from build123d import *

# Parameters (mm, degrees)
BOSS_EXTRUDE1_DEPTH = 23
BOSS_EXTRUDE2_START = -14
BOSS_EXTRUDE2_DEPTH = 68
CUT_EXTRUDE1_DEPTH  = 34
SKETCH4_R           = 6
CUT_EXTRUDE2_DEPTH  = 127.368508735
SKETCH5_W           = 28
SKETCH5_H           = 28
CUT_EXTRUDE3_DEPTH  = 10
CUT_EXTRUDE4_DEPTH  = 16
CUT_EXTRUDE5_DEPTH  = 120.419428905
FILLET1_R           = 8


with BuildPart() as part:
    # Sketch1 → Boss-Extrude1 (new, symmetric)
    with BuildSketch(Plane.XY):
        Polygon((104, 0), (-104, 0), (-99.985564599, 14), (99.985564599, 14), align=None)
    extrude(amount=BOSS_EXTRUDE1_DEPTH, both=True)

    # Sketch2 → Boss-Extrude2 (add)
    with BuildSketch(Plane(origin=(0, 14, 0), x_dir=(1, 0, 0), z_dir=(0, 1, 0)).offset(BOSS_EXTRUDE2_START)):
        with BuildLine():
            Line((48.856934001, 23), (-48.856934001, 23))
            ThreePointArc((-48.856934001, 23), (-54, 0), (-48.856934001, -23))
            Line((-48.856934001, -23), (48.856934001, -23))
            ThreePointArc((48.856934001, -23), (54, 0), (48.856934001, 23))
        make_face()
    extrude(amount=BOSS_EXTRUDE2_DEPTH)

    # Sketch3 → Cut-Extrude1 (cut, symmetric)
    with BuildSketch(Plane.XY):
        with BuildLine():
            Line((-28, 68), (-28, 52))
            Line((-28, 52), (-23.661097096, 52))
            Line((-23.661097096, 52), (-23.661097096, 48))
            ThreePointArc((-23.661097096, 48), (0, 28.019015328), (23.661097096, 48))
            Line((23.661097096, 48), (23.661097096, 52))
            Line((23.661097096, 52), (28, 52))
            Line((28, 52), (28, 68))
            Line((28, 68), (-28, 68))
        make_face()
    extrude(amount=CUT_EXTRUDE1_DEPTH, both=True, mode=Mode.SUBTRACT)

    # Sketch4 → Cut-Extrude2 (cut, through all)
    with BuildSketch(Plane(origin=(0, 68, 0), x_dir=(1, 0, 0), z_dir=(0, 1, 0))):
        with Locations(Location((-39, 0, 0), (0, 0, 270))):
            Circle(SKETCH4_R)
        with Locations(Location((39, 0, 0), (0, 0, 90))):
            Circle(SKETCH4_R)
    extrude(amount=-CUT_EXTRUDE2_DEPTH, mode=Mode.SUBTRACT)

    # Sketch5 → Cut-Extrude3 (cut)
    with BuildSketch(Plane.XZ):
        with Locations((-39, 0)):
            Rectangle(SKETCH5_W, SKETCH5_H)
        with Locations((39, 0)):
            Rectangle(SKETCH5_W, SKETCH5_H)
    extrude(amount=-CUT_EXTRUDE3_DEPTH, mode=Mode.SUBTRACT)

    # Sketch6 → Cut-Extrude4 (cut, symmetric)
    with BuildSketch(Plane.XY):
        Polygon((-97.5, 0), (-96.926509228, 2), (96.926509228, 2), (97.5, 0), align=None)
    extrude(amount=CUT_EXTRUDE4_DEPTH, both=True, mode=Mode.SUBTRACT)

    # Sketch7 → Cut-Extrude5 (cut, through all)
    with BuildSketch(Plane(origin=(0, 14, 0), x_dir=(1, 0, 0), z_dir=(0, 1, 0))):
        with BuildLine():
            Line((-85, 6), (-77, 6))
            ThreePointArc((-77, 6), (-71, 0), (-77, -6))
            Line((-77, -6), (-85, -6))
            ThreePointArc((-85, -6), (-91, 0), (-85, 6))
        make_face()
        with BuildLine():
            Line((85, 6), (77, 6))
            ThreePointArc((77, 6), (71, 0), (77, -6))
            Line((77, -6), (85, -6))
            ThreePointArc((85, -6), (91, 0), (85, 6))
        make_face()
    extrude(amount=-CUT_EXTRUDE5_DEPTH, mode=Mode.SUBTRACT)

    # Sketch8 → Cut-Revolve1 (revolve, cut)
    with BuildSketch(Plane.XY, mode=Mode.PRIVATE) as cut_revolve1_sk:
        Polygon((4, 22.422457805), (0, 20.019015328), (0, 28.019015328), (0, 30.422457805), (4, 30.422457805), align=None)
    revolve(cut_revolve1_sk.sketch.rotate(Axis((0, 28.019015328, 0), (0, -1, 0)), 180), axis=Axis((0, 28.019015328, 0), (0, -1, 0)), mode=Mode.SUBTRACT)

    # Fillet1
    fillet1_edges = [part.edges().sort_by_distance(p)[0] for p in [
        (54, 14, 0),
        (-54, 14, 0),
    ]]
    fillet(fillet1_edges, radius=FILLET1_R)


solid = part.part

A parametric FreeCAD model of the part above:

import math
import FreeCAD as App
import Part
import Sketcher
from FreeCAD import Vector
Q = App.Units.Quantity


def edges_at(feature, points):
    """Names of the edges that pass closest to the given points."""
    edges = feature.Shape.Edges
    near = lambda p: min(range(len(edges)), key=lambda i: edges[i].distToShape(Part.Vertex(*p))[0])
    return sorted({f"Edge{near(p) + 1}" for p in points})


def add_polygon(sketch, points):
    """Adds a closed chain of lines whose ends are joined by coincident constraints."""
    first, n = sketch.GeometryCount, len(points)
    for a, b in zip(points, points[1:] + points[:1]):
        sketch.addGeometry(Part.LineSegment(App.Vector(*a, 0), App.Vector(*b, 0)), False)
    for i in range(n):
        sketch.addConstraint(Sketcher.Constraint("Coincident", first + i, 2, first + (i + 1) % n, 1))

doc = App.newDocument("Part")
params = doc.addObject("Spreadsheet::Sheet", "Params")
for row, (alias, value) in enumerate([
    ("sketch1_width", "208 mm"),
    ("pad1_length", "46 mm"),
    ("sketch2_radius", "54 mm"),
    ("pad2_length", "68 mm"),
    ("sketch3_radius", "24 mm"),
    ("sketch3_width", "56 mm"),
    ("sketch3_height", "16 mm"),
    ("sketch3_height2", "4 mm"),
    ("pocket1_length", "68 mm"),
    ("sketch4_diameter", "12 mm"),
    ("sketch5_width", "28 mm"),
    ("pocket3_length", "10 mm"),
    ("sketch6_width", "195 mm"),
    ("pocket4_length", "32 mm"),
    ("sketch7_radius", "6 mm"),
    ("sketch7_width", "8 mm"),
    ("sketch8_width", "4 mm"),
    ("sketch8_height", "8 mm"),
    ("groove_angle", "360 deg"),
    ("fillet_radius", "8 mm"),
], start=1):
    params.set(f"A{row}", alias)
    params.set(f"B{row}", "=" + value)
    params.setAlias(f"B{row}", alias)

body = doc.addObject("PartDesign::Body", "Body")

# Sketch on XY plane
sketch1 = body.newObject("Sketcher::SketchObject", "Sketch")
sketch1.AttachmentSupport = (doc.getObject("XY_Plane"), [""])
sketch1.MapMode = "FlatFace"
add_polygon(sketch1, [(-104, 0), (104, 0), (100, 14), (-100, 14)])  # lines 0-3
sketch1.addConstraint(Sketcher.Constraint("Horizontal", 0))
sketch1.addConstraint(Sketcher.Constraint("Horizontal", 2))
sketch1.addConstraint(Sketcher.Constraint("Symmetric", 0, 2, 3, 2, -1, 1))
sketch1.addConstraint(Sketcher.Constraint("Equal", 1, 3))
sketch1.addConstraint(Sketcher.Constraint("DistanceX", 0, 1, 0, 2, Q("208 mm")))
sketch1.addConstraint(Sketcher.Constraint("Angle", 1, Q("106 deg")))
sketch1.addConstraint(Sketcher.Constraint("DistanceY", -1, 1, 1, 2, Q("14 mm")))
sketch1.setExpression("Constraints[8]", "Params.sketch1_width")
pad1 = body.newObject("PartDesign::Pad", "Pad")
pad1.Profile = sketch1
pad1.setExpression("Length", "Params.pad1_length")
pad1.Midplane = True

# Sketch on XZ plane
sketch2 = body.newObject("Sketcher::SketchObject", "Sketch001")
sketch2.AttachmentSupport = (doc.getObject("XZ_Plane"), [""])
sketch2.MapMode = "FlatFace"
sketch2.addGeometry(Part.LineSegment(Vector(49, -23, 0), Vector(-49, -23, 0)), False)
sketch2.addGeometry(Part.ArcOfCircle(Part.Circle(Vector(0, 0, 0), Vector(0, 0, 1), 54), math.radians(155), math.radians(205)), False)
sketch2.addGeometry(Part.LineSegment(Vector(-49, 23, 0), Vector(49, 23, 0)), False)
sketch2.addGeometry(Part.ArcOfCircle(Part.Circle(Vector(0, 0, 0), Vector(0, 0, 1), 54), math.radians(-25), math.radians(25)), False)
sketch2.addConstraint(Sketcher.Constraint("Coincident", 0, 2, 1, 2))
sketch2.addConstraint(Sketcher.Constraint("Coincident", 1, 1, 2, 1))
sketch2.addConstraint(Sketcher.Constraint("Coincident", 2, 2, 3, 2))
sketch2.addConstraint(Sketcher.Constraint("Coincident", 3, 1, 0, 1))
sketch2.addConstraint(Sketcher.Constraint("Horizontal", 0))
sketch2.addConstraint(Sketcher.Constraint("Horizontal", 2))
sketch2.addConstraint(Sketcher.Constraint("Coincident", 1, 3, -1, 1))
sketch2.addConstraint(Sketcher.Constraint("Coincident", 3, 3, -1, 1))
sketch2.addConstraint(Sketcher.Constraint("Equal", 1, 3))
sketch2.addConstraint(Sketcher.Constraint("Vertical", 0, 2, 1, 1))
sketch2.addConstraint(Sketcher.Constraint("Radius", 1, Q("54 mm")))
sketch2.addConstraint(Sketcher.Constraint("DistanceY", 0, 2, -1, 1, Q("23 mm")))
sketch2.setExpression("Constraints[10]", "Params.sketch2_radius")
pad2 = body.newObject("PartDesign::Pad", "Pad001")
pad2.Profile = sketch2
pad2.setExpression("Length", "Params.pad2_length")
pad2.Reversed = True

# Sketch on XY plane
sketch3 = body.newObject("Sketcher::SketchObject", "Sketch002")
sketch3.AttachmentSupport = (doc.getObject("XY_Plane"), [""])
sketch3.MapMode = "FlatFace"
sketch3.addGeometry(Part.LineSegment(Vector(-28, 68, 0), Vector(-28, 52, 0)), False)
sketch3.addGeometry(Part.LineSegment(Vector(-28, 52, 0), Vector(-23.7, 52, 0)), False)
sketch3.addGeometry(Part.LineSegment(Vector(-23.7, 52, 0), Vector(-23.7, 48, 0)), False)
sketch3.addGeometry(Part.ArcOfCircle(Part.Circle(Vector(0, 52, 0), Vector(0, 0, 1), 24), math.radians(-170), math.radians(-10)), False)
sketch3.addGeometry(Part.LineSegment(Vector(23.7, 48, 0), Vector(23.7, 52, 0)), False)
sketch3.addGeometry(Part.LineSegment(Vector(23.7, 52, 0), Vector(28, 52, 0)), False)
sketch3.addGeometry(Part.LineSegment(Vector(28, 52, 0), Vector(28, 68, 0)), False)
sketch3.addGeometry(Part.LineSegment(Vector(28, 68, 0), Vector(-28, 68, 0)), False)
sketch3.addConstraint(Sketcher.Constraint("Coincident", 0, 2, 1, 1))
sketch3.addConstraint(Sketcher.Constraint("Coincident", 1, 2, 2, 1))
sketch3.addConstraint(Sketcher.Constraint("Coincident", 2, 2, 3, 1))
sketch3.addConstraint(Sketcher.Constraint("Coincident", 3, 2, 4, 1))
sketch3.addConstraint(Sketcher.Constraint("Coincident", 4, 2, 5, 1))
sketch3.addConstraint(Sketcher.Constraint("Coincident", 5, 2, 6, 1))
sketch3.addConstraint(Sketcher.Constraint("Coincident", 6, 2, 7, 1))
sketch3.addConstraint(Sketcher.Constraint("Coincident", 7, 2, 0, 1))
sketch3.addConstraint(Sketcher.Constraint("Vertical", 0))
sketch3.addConstraint(Sketcher.Constraint("Horizontal", 1))
sketch3.addConstraint(Sketcher.Constraint("Vertical", 2))
sketch3.addConstraint(Sketcher.Constraint("Vertical", 4))
sketch3.addConstraint(Sketcher.Constraint("Horizontal", 5))
sketch3.addConstraint(Sketcher.Constraint("Vertical", 6))
sketch3.addConstraint(Sketcher.Constraint("Horizontal", 7))
sketch3.addConstraint(Sketcher.Constraint("Symmetric", 2, 2, 3, 2, -2))
sketch3.addConstraint(Sketcher.Constraint("Symmetric", 0, 2, 5, 2, -2))
sketch3.addConstraint(Sketcher.Constraint("Radius", 3, Q("24 mm")))
sketch3.addConstraint(Sketcher.Constraint("DistanceX", 7, 2, 7, 1, Q("56 mm")))
sketch3.addConstraint(Sketcher.Constraint("DistanceY", 0, 2, 0, 1, Q("16 mm")))
sketch3.addConstraint(Sketcher.Constraint("DistanceY", 2, 2, 2, 1, Q("4 mm")))
sketch3.addConstraint(Sketcher.Constraint("DistanceY", -1, 1, 0, 2, Q("52 mm")))
sketch3.addConstraint(Sketcher.Constraint("DistanceX", 1, 1, 1, 2, Q("4.338903 mm")))
sketch3.setExpression("Constraints[17]", "Params.sketch3_radius")
sketch3.setExpression("Constraints[18]", "Params.sketch3_width")
sketch3.setExpression("Constraints[19]", "Params.sketch3_height")
sketch3.setExpression("Constraints[20]", "Params.sketch3_height2")
pocket1 = body.newObject("PartDesign::Pocket", "Pocket")
pocket1.Profile = sketch3
pocket1.setExpression("Length", "Params.pocket1_length")
pocket1.Midplane = True

# Sketch on XZ plane
sketch4 = body.newObject("Sketcher::SketchObject", "Sketch003")
sketch4.AttachmentSupport = (doc.getObject("XZ_Plane"), [""])
sketch4.MapMode = "FlatFace"
sketch4.AttachmentOffset = App.Placement(Vector(0, 0, -68), App.Rotation())
sketch4.addGeometry(Part.Circle(Vector(-39, 0, 0), Vector(0, 0, 1), 6), False)
sketch4.addGeometry(Part.Circle(Vector(39, 0, 0), Vector(0, 0, 1), 6), False)
sketch4.addConstraint(Sketcher.Constraint("Equal", 0, 1))
sketch4.addConstraint(Sketcher.Constraint("Symmetric", 0, 3, 1, 3, -1, 1))
sketch4.addConstraint(Sketcher.Constraint("PointOnObject", 0, 3, -1))
sketch4.addConstraint(Sketcher.Constraint("Diameter", 0, Q("12 mm")))
sketch4.addConstraint(Sketcher.Constraint("DistanceX", 0, 3, -1, 1, Q("39 mm")))
sketch4.setExpression("Constraints[3]", "Params.sketch4_diameter")
pocket2 = body.newObject("PartDesign::Pocket", "Pocket001")
pocket2.Profile = sketch4
pocket2.Type = "ThroughAll"
pocket2.Reversed = True

# Sketch on XZ plane
sketch5 = body.newObject("Sketcher::SketchObject", "Sketch004")
sketch5.AttachmentSupport = (doc.getObject("XZ_Plane"), [""])
sketch5.MapMode = "FlatFace"
add_polygon(sketch5, [(-53, 14), (-53, -14), (-25, -14), (-25, 14)])  # lines 0-3
add_polygon(sketch5, [(25, 14), (25, -14), (53, -14), (53, 14)])  # lines 4-7
sketch5.addConstraint(Sketcher.Constraint("Vertical", 0))
sketch5.addConstraint(Sketcher.Constraint("Horizontal", 1))
sketch5.addConstraint(Sketcher.Constraint("Vertical", 2))
sketch5.addConstraint(Sketcher.Constraint("Horizontal", 3))
sketch5.addConstraint(Sketcher.Constraint("Vertical", 4))
sketch5.addConstraint(Sketcher.Constraint("Horizontal", 5))
sketch5.addConstraint(Sketcher.Constraint("Vertical", 6))
sketch5.addConstraint(Sketcher.Constraint("Horizontal", 7))
sketch5.addConstraint(Sketcher.Constraint("Symmetric", 2, 2, 4, 2, -1, 1))
sketch5.addConstraint(Sketcher.Constraint("Symmetric", 0, 2, 6, 2, -1, 1))
sketch5.addConstraint(Sketcher.Constraint("Horizontal", 1, 2, 4, 2))
sketch5.addConstraint(Sketcher.Constraint("Equal", 7, 0))
sketch5.addConstraint(Sketcher.Constraint("DistanceX", 1, 1, 1, 2, Q("28 mm")))
sketch5.addConstraint(Sketcher.Constraint("DistanceX", 0, 2, -1, 1, Q("53 mm")))
sketch5.setExpression("Constraints[20]", "Params.sketch5_width")
pocket3 = body.newObject("PartDesign::Pocket", "Pocket002")
pocket3.Profile = sketch5
pocket3.setExpression("Length", "Params.pocket3_length")

# Sketch on XY plane
sketch6 = body.newObject("Sketcher::SketchObject", "Sketch005")
sketch6.AttachmentSupport = (doc.getObject("XY_Plane"), [""])
sketch6.MapMode = "FlatFace"
add_polygon(sketch6, [(-96.9, 2), (-97.5, 0), (97.5, 0), (96.9, 2)])  # lines 0-3
sketch6.addConstraint(Sketcher.Constraint("Horizontal", 1))
sketch6.addConstraint(Sketcher.Constraint("Horizontal", 3))
sketch6.addConstraint(Sketcher.Constraint("Symmetric", 0, 2, 1, 2, -1, 1))
sketch6.addConstraint(Sketcher.Constraint("Equal", 0, 2))
sketch6.addConstraint(Sketcher.Constraint("DistanceX", 1, 1, 1, 2, Q("195 mm")))
sketch6.addConstraint(Sketcher.Constraint("Angle", 0, Q("-106 deg")))
sketch6.addConstraint(Sketcher.Constraint("DistanceY", -1, 1, 2, 2, Q("2 mm")))
sketch6.setExpression("Constraints[8]", "Params.sketch6_width")
pocket4 = body.newObject("PartDesign::Pocket", "Pocket003")
pocket4.Profile = sketch6
pocket4.setExpression("Length", "Params.pocket4_length")
pocket4.Midplane = True

# Sketch on XZ plane
sketch7 = body.newObject("Sketcher::SketchObject", "Sketch006")
sketch7.AttachmentSupport = (doc.getObject("XZ_Plane"), [""])
sketch7.MapMode = "FlatFace"
sketch7.AttachmentOffset = App.Placement(Vector(0, 0, -14), App.Rotation())
sketch7.addGeometry(Part.LineSegment(Vector(-77, -6, 0), Vector(-85, -6, 0)), False)
sketch7.addGeometry(Part.ArcOfCircle(Part.Circle(Vector(-85, 0, 0), Vector(0, 0, 1), 6), math.radians(90), math.radians(270)), False)
sketch7.addGeometry(Part.LineSegment(Vector(-85, 6, 0), Vector(-77, 6, 0)), False)
sketch7.addGeometry(Part.ArcOfCircle(Part.Circle(Vector(-77, 0, 0), Vector(0, 0, 1), 6), math.radians(-90), math.radians(90)), False)
sketch7.addGeometry(Part.LineSegment(Vector(85, -6, 0), Vector(77, -6, 0)), False)
sketch7.addGeometry(Part.ArcOfCircle(Part.Circle(Vector(77, 0, 0), Vector(0, 0, 1), 6), math.radians(90), math.radians(270)), False)
sketch7.addGeometry(Part.LineSegment(Vector(77, 6, 0), Vector(85, 6, 0)), False)
sketch7.addGeometry(Part.ArcOfCircle(Part.Circle(Vector(85, 0, 0), Vector(0, 0, 1), 6), math.radians(-90), math.radians(90)), False)
sketch7.addConstraint(Sketcher.Constraint("Tangent", 0, 2, 1, 2))
sketch7.addConstraint(Sketcher.Constraint("Tangent", 1, 1, 2, 1))
sketch7.addConstraint(Sketcher.Constraint("Tangent", 2, 2, 3, 2))
sketch7.addConstraint(Sketcher.Constraint("Tangent", 3, 1, 0, 1))
sketch7.addConstraint(Sketcher.Constraint("Tangent", 4, 2, 5, 2))
sketch7.addConstraint(Sketcher.Constraint("Tangent", 5, 1, 6, 1))
sketch7.addConstraint(Sketcher.Constraint("Tangent", 6, 2, 7, 2))
sketch7.addConstraint(Sketcher.Constraint("Tangent", 7, 1, 4, 1))
sketch7.addConstraint(Sketcher.Constraint("Horizontal", 0))
sketch7.addConstraint(Sketcher.Constraint("Horizontal", 2))
sketch7.addConstraint(Sketcher.Constraint("Horizontal", 4))
sketch7.addConstraint(Sketcher.Constraint("Horizontal", 6))
sketch7.addConstraint(Sketcher.Constraint("Equal", 3, 5))
sketch7.addConstraint(Sketcher.Constraint("Symmetric", 3, 3, 5, 3, -1, 1))
sketch7.addConstraint(Sketcher.Constraint("Symmetric", 1, 3, 7, 3, -2))
sketch7.addConstraint(Sketcher.Constraint("Radius", 1, Q("6 mm")))
sketch7.addConstraint(Sketcher.Constraint("DistanceX", 0, 2, 0, 1, Q("8 mm")))
sketch7.addConstraint(Sketcher.Constraint("DistanceX", 1, 3, -1, 1, Q("85 mm")))
sketch7.setExpression("Constraints[15]", "Params.sketch7_radius")
sketch7.setExpression("Constraints[16]", "Params.sketch7_width")
pocket5 = body.newObject("PartDesign::Pocket", "Pocket004")
pocket5.Profile = sketch7
pocket5.Type = "ThroughAll"
pocket5.Reversed = True

# Sketch on XY plane
sketch8 = body.newObject("Sketcher::SketchObject", "Sketch007")
sketch8.AttachmentSupport = (doc.getObject("XY_Plane"), [""])
sketch8.MapMode = "FlatFace"
add_polygon(sketch8, [(0, 20), (4, 22.4), (4, 30.4), (0, 30.4)])  # lines 0-3
sketch8.addConstraint(Sketcher.Constraint("Vertical", 1))
sketch8.addConstraint(Sketcher.Constraint("Horizontal", 2))
sketch8.addConstraint(Sketcher.Constraint("Vertical", 3))
sketch8.addConstraint(Sketcher.Constraint("PointOnObject", 2, 2, -2))
sketch8.addConstraint(Sketcher.Constraint("DistanceX", 2, 2, 2, 1, Q("4 mm")))
sketch8.addConstraint(Sketcher.Constraint("DistanceY", 1, 1, 1, 2, Q("8 mm")))
sketch8.addConstraint(Sketcher.Constraint("Angle", 0, Q("31 deg")))
sketch8.addConstraint(Sketcher.Constraint("DistanceY", -1, 1, 0, 2, Q("22.422458 mm")))
sketch8.setExpression("Constraints[8]", "Params.sketch8_width")
sketch8.setExpression("Constraints[9]", "Params.sketch8_height")
groove = body.newObject("PartDesign::Groove", "Groove")
groove.Profile = sketch8
groove.ReferenceAxis = (sketch8, ["V_Axis"])
groove.setExpression("Angle", "Params.groove_angle")
doc.recompute()

fillet = body.newObject("PartDesign::Fillet", "Fillet")
fillet.Base = (groove, edges_at(groove, [(54, 14, 0), (-54, 14, 0)]))
fillet.setExpression("Radius", "Params.fillet_radius")

doc.recompute()
